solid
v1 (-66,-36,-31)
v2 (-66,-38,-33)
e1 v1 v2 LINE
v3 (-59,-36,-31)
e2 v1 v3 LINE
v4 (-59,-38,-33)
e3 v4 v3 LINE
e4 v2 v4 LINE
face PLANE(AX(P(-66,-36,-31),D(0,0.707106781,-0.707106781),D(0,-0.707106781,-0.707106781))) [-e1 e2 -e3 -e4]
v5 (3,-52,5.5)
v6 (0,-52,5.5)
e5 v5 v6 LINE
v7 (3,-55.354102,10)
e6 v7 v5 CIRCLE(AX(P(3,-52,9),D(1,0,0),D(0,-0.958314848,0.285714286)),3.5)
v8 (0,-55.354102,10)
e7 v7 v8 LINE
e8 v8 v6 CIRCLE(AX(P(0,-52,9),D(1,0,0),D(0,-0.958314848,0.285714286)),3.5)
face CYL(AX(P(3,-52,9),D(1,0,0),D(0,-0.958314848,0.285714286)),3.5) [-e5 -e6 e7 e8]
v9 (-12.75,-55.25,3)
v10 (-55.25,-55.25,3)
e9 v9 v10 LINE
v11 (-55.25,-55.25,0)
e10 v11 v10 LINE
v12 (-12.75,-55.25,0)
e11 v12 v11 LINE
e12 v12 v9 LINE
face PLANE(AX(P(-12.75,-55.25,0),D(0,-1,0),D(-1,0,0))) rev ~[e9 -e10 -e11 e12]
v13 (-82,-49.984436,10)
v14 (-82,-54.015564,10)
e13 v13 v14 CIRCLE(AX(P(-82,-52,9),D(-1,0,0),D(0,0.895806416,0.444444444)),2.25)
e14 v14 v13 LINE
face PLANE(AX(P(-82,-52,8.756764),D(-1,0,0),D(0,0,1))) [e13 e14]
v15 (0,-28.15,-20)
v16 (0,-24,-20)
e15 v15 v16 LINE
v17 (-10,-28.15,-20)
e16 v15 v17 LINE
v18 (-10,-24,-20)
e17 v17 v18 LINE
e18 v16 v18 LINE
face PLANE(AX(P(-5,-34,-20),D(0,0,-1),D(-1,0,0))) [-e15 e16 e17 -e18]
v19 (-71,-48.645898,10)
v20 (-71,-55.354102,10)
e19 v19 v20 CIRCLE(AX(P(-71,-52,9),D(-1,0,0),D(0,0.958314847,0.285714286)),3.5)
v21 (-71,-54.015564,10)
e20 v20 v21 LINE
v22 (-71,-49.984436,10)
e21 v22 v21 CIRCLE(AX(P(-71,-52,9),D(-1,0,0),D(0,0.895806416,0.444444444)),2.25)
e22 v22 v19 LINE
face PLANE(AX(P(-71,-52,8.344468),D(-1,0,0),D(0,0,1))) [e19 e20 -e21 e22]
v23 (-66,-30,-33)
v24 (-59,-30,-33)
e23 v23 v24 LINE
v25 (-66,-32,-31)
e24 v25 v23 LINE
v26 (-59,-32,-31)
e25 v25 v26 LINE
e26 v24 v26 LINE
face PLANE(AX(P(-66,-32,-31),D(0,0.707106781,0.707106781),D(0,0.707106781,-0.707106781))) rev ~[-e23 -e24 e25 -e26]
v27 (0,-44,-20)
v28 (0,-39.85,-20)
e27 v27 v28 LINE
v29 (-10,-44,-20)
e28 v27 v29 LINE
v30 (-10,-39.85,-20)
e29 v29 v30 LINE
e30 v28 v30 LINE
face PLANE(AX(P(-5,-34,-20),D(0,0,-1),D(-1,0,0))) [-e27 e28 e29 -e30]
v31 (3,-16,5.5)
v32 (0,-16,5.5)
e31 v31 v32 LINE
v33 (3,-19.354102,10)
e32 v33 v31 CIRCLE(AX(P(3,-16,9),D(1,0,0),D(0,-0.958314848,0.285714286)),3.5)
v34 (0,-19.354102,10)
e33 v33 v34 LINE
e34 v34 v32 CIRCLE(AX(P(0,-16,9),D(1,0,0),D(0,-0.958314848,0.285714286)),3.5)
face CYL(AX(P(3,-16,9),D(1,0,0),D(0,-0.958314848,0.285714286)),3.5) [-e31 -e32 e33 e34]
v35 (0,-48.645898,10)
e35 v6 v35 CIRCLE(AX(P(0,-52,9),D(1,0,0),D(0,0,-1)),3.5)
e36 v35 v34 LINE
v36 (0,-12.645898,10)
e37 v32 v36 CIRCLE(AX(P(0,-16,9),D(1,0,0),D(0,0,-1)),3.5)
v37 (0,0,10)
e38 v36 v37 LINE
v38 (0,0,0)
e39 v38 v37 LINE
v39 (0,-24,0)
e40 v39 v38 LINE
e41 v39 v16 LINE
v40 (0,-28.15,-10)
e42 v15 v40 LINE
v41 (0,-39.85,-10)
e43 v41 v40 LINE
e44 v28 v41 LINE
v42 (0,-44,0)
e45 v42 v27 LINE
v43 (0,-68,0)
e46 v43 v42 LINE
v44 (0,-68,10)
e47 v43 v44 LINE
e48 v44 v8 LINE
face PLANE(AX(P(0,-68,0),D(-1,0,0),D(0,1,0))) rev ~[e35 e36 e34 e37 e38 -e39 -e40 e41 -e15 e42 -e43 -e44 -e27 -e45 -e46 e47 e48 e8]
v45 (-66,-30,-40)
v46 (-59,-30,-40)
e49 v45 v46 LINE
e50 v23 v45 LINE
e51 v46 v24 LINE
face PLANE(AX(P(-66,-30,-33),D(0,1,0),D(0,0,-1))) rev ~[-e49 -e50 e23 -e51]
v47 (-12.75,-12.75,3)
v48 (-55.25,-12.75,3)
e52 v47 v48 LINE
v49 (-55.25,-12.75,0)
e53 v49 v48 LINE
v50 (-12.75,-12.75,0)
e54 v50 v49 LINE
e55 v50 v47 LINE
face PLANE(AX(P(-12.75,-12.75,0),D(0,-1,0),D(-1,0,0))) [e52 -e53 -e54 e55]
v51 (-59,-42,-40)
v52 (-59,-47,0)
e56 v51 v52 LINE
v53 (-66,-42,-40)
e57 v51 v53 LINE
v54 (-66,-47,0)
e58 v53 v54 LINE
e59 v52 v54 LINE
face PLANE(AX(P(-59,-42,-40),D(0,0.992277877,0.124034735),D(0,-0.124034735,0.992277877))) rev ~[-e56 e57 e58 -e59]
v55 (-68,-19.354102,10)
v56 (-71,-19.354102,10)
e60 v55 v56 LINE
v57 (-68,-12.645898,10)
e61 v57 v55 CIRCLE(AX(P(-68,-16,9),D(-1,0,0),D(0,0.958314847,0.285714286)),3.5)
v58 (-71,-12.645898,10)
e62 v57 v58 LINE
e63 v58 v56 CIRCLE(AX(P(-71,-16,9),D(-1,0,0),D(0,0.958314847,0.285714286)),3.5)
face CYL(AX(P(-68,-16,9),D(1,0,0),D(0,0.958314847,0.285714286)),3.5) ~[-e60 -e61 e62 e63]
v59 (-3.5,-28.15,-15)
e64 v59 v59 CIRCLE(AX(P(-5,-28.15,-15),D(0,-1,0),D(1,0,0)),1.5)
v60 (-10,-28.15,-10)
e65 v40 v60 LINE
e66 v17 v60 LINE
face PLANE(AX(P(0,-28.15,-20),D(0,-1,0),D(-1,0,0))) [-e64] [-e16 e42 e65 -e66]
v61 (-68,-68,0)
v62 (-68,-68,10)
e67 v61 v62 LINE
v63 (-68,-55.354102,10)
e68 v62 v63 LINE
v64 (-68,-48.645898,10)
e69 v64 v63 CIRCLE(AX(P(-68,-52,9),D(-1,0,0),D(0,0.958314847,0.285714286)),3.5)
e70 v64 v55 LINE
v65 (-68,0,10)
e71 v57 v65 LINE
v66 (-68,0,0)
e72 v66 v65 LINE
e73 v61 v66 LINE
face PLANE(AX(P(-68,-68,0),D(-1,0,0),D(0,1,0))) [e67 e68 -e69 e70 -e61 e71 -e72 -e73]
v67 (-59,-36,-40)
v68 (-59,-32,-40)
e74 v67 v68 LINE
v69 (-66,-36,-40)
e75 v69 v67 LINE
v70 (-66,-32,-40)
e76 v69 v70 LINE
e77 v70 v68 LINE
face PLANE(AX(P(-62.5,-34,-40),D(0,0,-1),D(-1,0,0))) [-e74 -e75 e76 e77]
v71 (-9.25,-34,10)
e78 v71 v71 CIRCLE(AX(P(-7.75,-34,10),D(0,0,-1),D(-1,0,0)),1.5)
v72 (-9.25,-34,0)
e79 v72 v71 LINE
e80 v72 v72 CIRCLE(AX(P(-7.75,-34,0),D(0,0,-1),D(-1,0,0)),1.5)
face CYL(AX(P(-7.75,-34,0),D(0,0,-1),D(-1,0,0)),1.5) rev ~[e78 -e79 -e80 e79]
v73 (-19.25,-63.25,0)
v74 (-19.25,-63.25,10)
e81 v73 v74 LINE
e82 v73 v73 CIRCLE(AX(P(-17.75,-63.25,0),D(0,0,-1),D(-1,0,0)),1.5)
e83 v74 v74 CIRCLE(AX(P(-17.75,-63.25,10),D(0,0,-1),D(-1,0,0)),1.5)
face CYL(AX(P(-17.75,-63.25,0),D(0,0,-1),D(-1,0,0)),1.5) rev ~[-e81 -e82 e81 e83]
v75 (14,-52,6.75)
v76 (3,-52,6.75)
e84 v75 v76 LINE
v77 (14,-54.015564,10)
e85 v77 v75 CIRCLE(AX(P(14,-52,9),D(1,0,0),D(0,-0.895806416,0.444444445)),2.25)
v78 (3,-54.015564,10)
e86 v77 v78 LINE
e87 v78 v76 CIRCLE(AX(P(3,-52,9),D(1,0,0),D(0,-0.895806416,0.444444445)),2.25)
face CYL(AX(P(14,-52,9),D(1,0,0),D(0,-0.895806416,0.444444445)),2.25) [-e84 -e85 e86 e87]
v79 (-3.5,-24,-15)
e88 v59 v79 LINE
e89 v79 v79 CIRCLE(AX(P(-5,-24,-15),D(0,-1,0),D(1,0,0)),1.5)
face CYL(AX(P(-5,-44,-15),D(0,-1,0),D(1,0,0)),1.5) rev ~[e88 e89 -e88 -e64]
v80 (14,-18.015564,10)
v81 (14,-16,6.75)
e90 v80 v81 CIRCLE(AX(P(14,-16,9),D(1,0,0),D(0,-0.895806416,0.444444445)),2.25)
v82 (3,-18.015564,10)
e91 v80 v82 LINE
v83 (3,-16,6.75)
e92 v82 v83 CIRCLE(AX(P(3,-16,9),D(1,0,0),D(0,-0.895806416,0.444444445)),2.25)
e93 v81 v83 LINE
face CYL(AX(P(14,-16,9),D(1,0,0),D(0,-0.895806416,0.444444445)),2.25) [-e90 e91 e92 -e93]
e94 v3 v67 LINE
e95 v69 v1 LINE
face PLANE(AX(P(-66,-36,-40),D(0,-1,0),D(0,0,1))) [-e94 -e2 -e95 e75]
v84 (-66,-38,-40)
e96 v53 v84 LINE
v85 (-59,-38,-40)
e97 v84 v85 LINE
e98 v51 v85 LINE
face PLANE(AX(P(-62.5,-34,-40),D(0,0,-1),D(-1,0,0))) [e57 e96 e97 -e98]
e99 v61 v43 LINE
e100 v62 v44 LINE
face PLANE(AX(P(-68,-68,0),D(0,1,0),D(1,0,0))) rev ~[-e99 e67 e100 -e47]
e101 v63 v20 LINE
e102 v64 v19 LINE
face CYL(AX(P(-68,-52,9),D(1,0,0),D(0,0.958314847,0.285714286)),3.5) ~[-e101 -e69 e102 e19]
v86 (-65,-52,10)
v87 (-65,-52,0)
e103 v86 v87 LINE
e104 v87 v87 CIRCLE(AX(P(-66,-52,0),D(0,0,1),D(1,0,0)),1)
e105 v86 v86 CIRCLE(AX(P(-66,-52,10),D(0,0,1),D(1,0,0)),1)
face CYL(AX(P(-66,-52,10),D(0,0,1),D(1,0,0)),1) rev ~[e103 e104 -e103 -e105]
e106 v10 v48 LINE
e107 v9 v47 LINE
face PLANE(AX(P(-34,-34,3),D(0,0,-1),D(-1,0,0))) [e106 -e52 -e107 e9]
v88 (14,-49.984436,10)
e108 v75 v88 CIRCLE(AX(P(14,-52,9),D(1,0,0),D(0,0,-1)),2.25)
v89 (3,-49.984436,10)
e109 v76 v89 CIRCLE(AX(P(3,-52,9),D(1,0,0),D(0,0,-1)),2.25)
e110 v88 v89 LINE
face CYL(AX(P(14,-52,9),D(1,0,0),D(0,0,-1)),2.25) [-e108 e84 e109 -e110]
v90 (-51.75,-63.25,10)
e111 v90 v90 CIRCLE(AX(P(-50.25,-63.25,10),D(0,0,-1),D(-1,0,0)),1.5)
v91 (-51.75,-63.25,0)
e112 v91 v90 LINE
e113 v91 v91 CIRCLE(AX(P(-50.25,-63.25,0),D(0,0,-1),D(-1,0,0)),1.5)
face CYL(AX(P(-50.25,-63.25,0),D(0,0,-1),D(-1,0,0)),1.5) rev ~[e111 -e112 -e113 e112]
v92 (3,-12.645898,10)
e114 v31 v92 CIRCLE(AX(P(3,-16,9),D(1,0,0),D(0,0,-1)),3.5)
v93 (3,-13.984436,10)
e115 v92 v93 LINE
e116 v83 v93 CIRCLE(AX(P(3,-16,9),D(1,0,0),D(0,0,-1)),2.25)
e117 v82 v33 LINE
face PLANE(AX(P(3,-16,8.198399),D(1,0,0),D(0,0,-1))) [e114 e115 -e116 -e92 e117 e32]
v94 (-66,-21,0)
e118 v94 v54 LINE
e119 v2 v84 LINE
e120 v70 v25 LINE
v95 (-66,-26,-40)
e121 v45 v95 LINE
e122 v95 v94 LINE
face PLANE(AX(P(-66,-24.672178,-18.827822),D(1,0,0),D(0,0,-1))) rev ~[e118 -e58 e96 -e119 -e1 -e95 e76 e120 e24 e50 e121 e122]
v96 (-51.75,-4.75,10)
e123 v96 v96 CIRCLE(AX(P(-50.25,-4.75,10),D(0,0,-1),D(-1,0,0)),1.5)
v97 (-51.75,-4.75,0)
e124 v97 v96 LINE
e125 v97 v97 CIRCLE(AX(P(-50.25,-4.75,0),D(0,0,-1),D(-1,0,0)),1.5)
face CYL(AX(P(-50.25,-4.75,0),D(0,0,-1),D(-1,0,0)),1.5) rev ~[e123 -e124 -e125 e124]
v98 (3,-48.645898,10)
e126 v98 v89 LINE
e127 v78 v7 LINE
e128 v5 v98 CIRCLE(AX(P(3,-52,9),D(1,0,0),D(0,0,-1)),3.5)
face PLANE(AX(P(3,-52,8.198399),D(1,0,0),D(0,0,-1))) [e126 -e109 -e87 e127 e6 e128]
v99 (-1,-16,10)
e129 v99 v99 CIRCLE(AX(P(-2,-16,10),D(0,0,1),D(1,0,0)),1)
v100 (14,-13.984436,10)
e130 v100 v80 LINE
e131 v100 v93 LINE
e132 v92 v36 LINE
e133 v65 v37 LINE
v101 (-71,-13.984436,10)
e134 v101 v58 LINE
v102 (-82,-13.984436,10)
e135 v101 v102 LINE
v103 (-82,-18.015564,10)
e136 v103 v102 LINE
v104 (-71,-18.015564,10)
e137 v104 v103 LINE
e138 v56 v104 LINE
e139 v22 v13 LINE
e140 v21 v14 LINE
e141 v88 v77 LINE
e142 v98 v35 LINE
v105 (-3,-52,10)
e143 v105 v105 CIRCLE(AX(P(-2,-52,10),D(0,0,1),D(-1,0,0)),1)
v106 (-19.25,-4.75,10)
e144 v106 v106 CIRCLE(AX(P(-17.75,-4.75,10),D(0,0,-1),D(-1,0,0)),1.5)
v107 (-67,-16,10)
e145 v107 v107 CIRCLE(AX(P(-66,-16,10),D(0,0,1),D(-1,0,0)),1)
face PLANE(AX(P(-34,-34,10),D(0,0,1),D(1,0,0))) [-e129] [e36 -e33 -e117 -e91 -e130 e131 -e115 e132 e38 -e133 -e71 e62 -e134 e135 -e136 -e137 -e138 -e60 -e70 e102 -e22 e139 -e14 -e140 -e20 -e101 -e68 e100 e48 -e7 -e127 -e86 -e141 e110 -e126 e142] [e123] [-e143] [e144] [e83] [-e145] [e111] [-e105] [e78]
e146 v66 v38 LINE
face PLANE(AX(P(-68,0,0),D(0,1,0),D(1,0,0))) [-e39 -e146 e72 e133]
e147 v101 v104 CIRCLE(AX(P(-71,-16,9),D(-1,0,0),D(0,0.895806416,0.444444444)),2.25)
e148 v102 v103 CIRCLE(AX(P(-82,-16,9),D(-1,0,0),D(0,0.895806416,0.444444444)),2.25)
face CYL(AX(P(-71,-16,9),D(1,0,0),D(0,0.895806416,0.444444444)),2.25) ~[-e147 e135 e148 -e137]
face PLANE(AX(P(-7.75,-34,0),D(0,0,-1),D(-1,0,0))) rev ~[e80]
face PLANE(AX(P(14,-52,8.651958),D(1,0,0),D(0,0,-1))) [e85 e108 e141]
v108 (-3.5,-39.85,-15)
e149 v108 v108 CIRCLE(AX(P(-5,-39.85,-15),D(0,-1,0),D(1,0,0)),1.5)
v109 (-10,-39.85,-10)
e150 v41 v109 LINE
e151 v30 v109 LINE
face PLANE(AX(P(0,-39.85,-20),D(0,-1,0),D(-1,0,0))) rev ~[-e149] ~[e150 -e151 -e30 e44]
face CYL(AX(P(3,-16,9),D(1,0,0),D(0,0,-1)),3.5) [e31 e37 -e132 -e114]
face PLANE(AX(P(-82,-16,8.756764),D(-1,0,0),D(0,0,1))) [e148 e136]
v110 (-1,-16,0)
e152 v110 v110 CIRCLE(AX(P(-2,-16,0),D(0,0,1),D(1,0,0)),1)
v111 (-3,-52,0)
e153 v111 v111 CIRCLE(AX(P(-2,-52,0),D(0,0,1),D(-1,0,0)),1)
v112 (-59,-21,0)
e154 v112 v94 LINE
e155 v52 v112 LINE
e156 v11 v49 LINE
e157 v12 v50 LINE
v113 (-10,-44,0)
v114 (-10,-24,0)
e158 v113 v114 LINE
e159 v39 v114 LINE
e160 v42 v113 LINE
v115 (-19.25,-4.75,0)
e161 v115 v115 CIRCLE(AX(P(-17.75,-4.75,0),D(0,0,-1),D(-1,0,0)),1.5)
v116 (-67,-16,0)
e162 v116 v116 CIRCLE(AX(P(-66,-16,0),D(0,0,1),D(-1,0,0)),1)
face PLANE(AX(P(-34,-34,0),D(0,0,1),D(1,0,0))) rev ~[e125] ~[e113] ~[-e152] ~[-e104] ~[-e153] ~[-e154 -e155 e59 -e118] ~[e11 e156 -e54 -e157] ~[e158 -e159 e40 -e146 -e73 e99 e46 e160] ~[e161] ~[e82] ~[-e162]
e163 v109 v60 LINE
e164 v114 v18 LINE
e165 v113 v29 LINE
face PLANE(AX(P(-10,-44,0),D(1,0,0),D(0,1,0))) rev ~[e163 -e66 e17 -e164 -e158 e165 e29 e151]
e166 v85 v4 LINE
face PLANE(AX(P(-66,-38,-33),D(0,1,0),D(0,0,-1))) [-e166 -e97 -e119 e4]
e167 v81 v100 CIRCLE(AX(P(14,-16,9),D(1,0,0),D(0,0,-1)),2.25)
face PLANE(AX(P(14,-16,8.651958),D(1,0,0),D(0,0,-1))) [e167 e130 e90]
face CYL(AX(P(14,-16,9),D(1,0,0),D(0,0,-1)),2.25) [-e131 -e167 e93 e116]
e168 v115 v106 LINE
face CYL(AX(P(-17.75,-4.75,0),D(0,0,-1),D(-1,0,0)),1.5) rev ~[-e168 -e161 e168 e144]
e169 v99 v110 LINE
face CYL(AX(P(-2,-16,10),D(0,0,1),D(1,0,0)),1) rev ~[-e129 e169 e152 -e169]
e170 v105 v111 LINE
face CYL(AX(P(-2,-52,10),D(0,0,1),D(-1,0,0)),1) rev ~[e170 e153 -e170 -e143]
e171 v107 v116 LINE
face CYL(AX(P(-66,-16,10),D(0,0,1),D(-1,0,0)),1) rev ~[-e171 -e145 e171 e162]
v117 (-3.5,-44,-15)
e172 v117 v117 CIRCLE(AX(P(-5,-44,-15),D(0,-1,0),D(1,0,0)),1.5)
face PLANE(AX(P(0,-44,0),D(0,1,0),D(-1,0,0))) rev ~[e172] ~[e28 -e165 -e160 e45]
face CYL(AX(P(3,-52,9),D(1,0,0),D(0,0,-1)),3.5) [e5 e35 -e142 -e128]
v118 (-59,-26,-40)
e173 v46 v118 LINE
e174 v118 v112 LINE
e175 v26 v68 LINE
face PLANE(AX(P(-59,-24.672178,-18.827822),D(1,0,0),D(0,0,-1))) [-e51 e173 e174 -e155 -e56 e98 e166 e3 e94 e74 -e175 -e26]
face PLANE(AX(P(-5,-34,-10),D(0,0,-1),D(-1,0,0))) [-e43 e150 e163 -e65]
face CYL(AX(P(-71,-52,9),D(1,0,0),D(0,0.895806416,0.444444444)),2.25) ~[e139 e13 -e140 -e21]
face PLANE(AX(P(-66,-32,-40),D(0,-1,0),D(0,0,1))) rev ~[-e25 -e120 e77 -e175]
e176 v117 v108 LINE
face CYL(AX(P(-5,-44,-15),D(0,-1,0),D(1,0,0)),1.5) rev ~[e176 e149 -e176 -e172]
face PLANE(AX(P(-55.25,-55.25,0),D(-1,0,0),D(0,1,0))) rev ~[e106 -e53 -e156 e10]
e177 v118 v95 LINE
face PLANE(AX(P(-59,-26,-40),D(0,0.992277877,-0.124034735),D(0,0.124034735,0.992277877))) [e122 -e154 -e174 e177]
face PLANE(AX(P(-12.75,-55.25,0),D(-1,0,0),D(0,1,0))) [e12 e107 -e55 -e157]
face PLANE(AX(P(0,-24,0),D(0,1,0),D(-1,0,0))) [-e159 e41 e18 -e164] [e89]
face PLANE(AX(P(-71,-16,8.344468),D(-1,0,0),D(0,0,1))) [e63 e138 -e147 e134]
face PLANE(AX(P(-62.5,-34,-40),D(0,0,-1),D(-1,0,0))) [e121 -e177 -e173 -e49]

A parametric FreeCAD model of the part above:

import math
import FreeCAD as App
import Part
import Sketcher
Q = App.Units.Quantity

doc = App.newDocument("Part")
body = doc.addObject("PartDesign::Body", "Body")

sketch1 = body.newObject("Sketcher::SketchObject", "Sketch")
sketch1.AttachmentSupport = (doc.getObject("XY_Plane"), [""])
sketch1.MapMode = "FlatFace"
sketch1.addGeometry(Part.LineSegment(App.Vector(-68, 0, 0), App.Vector(-68, -68, 0)), False)
sketch1.addGeometry(Part.LineSegment(App.Vector(-68, -68, 0), App.Vector(0, -68, 0)), False)
sketch1.addGeometry(Part.LineSegment(App.Vector(0, -68, 0), App.Vector(0, 0, 0)), False)
sketch1.addGeometry(Part.LineSegment(App.Vector(0, 0, 0), App.Vector(-68, 0, 0)), False)
sketch1.addConstraint(Sketcher.Constraint("Coincident", 0, 2, 1, 1))
sketch1.addConstraint(Sketcher.Constraint("Coincident", 1, 2, 2, 1))
sketch1.addConstraint(Sketcher.Constraint("Coincident", 2, 2, 3, 1))
sketch1.addConstraint(Sketcher.Constraint("Coincident", 3, 2, 0, 1))
sketch1.addConstraint(Sketcher.Constraint("Vertical", 0))
sketch1.addConstraint(Sketcher.Constraint("Horizontal", 1))
sketch1.addConstraint(Sketcher.Constraint("Vertical", 2))
sketch1.addConstraint(Sketcher.Constraint("Horizontal", 3))
sketch1.addConstraint(Sketcher.Constraint("Coincident", 2, 2, -1, 1))
sketch1.addConstraint(Sketcher.Constraint("Equal", 3, 0))
sketch1.addConstraint(Sketcher.Constraint("DistanceX", 1, 1, 1, 2, Q("68 mm")))
pad1 = body.newObject("PartDesign::Pad", "Pad")
pad1.Profile = sketch1
pad1.Length = 10

sketch2 = body.newObject("Sketcher::SketchObject", "Sketch001")
sketch2.AttachmentSupport = (doc.getObject("YZ_Plane"), [""])
sketch2.MapMode = "FlatFace"
sketch2.AttachmentOffset = App.Placement(App.Vector(0, 0, -68), App.Rotation())
sketch2.addGeometry(Part.LineSegment(App.Vector(-19.4, 10, 0), App.Vector(-12.6, 10, 0)), False)
sketch2.addGeometry(Part.ArcOfCircle(Part.Circle(App.Vector(-16, 9, 0), App.Vector(0, 0, 1), 3.5), math.radians(163), math.radians(377)), False)
sketch2.addGeometry(Part.LineSegment(App.Vector(-55.4, 10, 0), App.Vector(-48.6, 10, 0)), False)
sketch2.addGeometry(Part.ArcOfCircle(Part.Circle(App.Vector(-52, 9, 0), App.Vector(0, 0, 1), 3.5), math.radians(163), math.radians(377)), False)
sketch2.addConstraint(Sketcher.Constraint("Coincident", 0, 1, 1, 1))
sketch2.addConstraint(Sketcher.Constraint("Coincident", 1, 2, 0, 2))
sketch2.addConstraint(Sketcher.Constraint("Coincident", 2, 1, 3, 1))
sketch2.addConstraint(Sketcher.Constraint("Coincident", 3, 2, 2, 2))
sketch2.addConstraint(Sketcher.Constraint("Horizontal", 0))
sketch2.addConstraint(Sketcher.Constraint("Horizontal", 2))
sketch2.addConstraint(Sketcher.Constraint("Equal", 1, 3))
sketch2.addConstraint(Sketcher.Constraint("Horizontal", 1, 3, 3, 3))
sketch2.addConstraint(Sketcher.Constraint("Horizontal", 1, 2, 2, 1))
sketch2.addConstraint(Sketcher.Constraint("Radius", 1, Q("3.5 mm")))
sketch2.addConstraint(Sketcher.Constraint("DistanceX", 1, 3, -1, 1, Q("16 mm")))
sketch2.addConstraint(Sketcher.Constraint("DistanceY", -1, 1, 1, 3, Q("9 mm")))
sketch2.addConstraint(Sketcher.Constraint("DistanceX", 3, 3, -1, 1, Q("52 mm")))
sketch2.addConstraint(Sketcher.Constraint("DistanceY", -1, 1, 0, 1, Q("10 mm")))
pad2 = body.newObject("PartDesign::Pad", "Pad001")
pad2.Profile = sketch2
pad2.Length = 3
pad2.Reversed = True

sketch3 = body.newObject("Sketcher::SketchObject", "Sketch002")
sketch3.AttachmentSupport = (doc.getObject("YZ_Plane"), [""])
sketch3.MapMode = "FlatFace"
sketch3.AttachmentOffset = App.Placement(App.Vector(0, 0, -71), App.Rotation())
sketch3.addGeometry(Part.ArcOfCircle(Part.Circle(App.Vector(-52, 9, 0), App.Vector(0, 0, 1), 2.2), math.radians(154), math.radians(386)), False)
sketch3.addGeometry(Part.LineSegment(App.Vector(-54, 10, 0), App.Vector(-50, 10, 0)), False)
sketch3.addGeometry(Part.ArcOfCircle(Part.Circle(App.Vector(-16, 9, 0), App.Vector(0, 0, 1), 2.2), math.radians(154), math.radians(386)), False)
sketch3.addGeometry(Part.LineSegment(App.Vector(-18, 10, 0), App.Vector(-14, 10, 0)), False)
sketch3.addConstraint(Sketcher.Constraint("Coincident", 0, 1, 1, 1))
sketch3.addConstraint(Sketcher.Constraint("Coincident", 1, 2, 0, 2))
sketch3.addConstraint(Sketcher.Constraint("Coincident", 2, 1, 3, 1))
sketch3.addConstraint(Sketcher.Constraint("Coincident", 3, 2, 2, 2))
sketch3.addConstraint(Sketcher.Constraint("Horizontal", 1))
sketch3.addConstraint(Sketcher.Constraint("Horizontal", 3))
sketch3.addConstraint(Sketcher.Constraint("Equal", 0, 2))
sketch3.addConstraint(Sketcher.Constraint("Horizontal", 0, 3, 2, 3))
sketch3.addConstraint(Sketcher.Constraint("Horizontal", 1, 2, 2, 1))
sketch3.addConstraint(Sketcher.Constraint("Radius", 0, Q("2.25 mm")))
sketch3.addConstraint(Sketcher.Constraint("DistanceX", 0, 3, -1, 1, Q("52 mm")))
sketch3.addConstraint(Sketcher.Constraint("DistanceY", -1, 1, 0, 3, Q("9 mm")))
sketch3.addConstraint(Sketcher.Constraint("DistanceX", 2, 3, -1, 1, Q("16 mm")))
sketch3.addConstraint(Sketcher.Constraint("DistanceY", -1, 1, 0, 1, Q("10 mm")))
pad3 = body.newObject("PartDesign::Pad", "Pad002")
pad3.Profile = sketch3
pad3.Length = 11
pad3.Reversed = True

sketch4 = body.newObject("Sketcher::SketchObject", "Sketch003")
sketch4.AttachmentSupport = (doc.getObject("YZ_Plane"), [""])
sketch4.MapMode = "FlatFace"
sketch4.AttachmentOffset = App.Placement(App.Vector(0, 0, 3), App.Rotation())
sketch4.addGeometry(Part.ArcOfCircle(Part.Circle(App.Vector(-16, 9, 0), App.Vector(0, 0, 1), 3.5), math.radians(-90), math.radians(17)), False)
sketch4.addGeometry(Part.LineSegment(App.Vector(-12.6, 10, 0), App.Vector(-19.4, 10, 0)), False)
sketch4.addGeometry(Part.ArcOfCircle(Part.Circle(App.Vector(-16, 9, 0), App.Vector(0, 0, 1), 3.5), math.radians(163), math.radians(270)), False)
sketch4.addGeometry(Part.ArcOfCircle(Part.Circle(App.Vector(-52, 9, 0), App.Vector(0, 0, 1), 3.5), math.radians(-90), math.radians(17)), False)
sketch4.addGeometry(Part.LineSegment(App.Vector(-48.6, 10, 0), App.Vector(-55.4, 10, 0)), False)
sketch4.addGeometry(Part.ArcOfCircle(Part.Circle(App.Vector(-52, 9, 0), App.Vector(0, 0, 1), 3.5), math.radians(163), math.radians(270)), False)
sketch4.addConstraint(Sketcher.Constraint("Coincident", 0, 2, 1, 1))
sketch4.addConstraint(Sketcher.Constraint("Coincident", 1, 2, 2, 1))
sketch4.addConstraint(Sketcher.Constraint("Tangent", 2, 2, 0, 1))
sketch4.addConstraint(Sketcher.Constraint("Coincident", 3, 2, 4, 1))
sketch4.addConstraint(Sketcher.Constraint("Coincident", 4, 2, 5, 1))
sketch4.addConstraint(Sketcher.Constraint("Tangent", 5, 2, 3, 1))
sketch4.addConstraint(Sketcher.Constraint("Horizontal", 1))
sketch4.addConstraint(Sketcher.Constraint("Horizontal", 4))
sketch4.addConstraint(Sketcher.Constraint("Equal", 0, 2))
sketch4.addConstraint(Sketcher.Constraint("Equal", 2, 3))
sketch4.addConstraint(Sketcher.Constraint("Equal", 3, 5))
sketch4.addConstraint(Sketcher.Constraint("Horizontal", 2, 3, 3, 3))
sketch4.addConstraint(Sketcher.Constraint("Horizontal", 1, 2, 3, 2))
sketch4.addConstraint(Sketcher.Constraint("Vertical", 0, 3, 2, 2))
sketch4.addConstraint(Sketcher.Constraint("Vertical", 3, 3, 5, 2))
sketch4.addConstraint(Sketcher.Constraint("Radius", 0, Q("3.5 mm")))
sketch4.addConstraint(Sketcher.Constraint("DistanceX", 0, 3, -1, 1, Q("16 mm")))
sketch4.addConstraint(Sketcher.Constraint("DistanceY", -1, 1, 0, 3, Q("9 mm")))
sketch4.addConstraint(Sketcher.Constraint("DistanceX", 3, 3, -1, 1, Q("52 mm")))
sketch4.addConstraint(Sketcher.Constraint("DistanceY", -1, 1, 0, 2, Q("10 mm")))
pad4 = body.newObject("PartDesign::Pad", "Pad003")
pad4.Profile = sketch4
pad4.Length = 3
pad4.Reversed = True

sketch5 = body.newObject("Sketcher::SketchObject", "Sketch004")
sketch5.AttachmentSupport = (doc.getObject("YZ_Plane"), [""])
sketch5.MapMode = "FlatFace"
sketch5.AttachmentOffset = App.Placement(App.Vector(0, 0, 14), App.Rotation())
sketch5.addGeometry(Part.ArcOfCircle(Part.Circle(App.Vector(-16, 9, 0), App.Vector(0, 0, 1), 2.2), math.radians(-90), math.radians(26)), False)
sketch5.addGeometry(Part.LineSegment(App.Vector(-14, 10, 0), App.Vector(-18, 10, 0)), False)
sketch5.addGeometry(Part.ArcOfCircle(Part.Circle(App.Vector(-16, 9, 0), App.Vector(0, 0, 1), 2.2), math.radians(154), math.radians(270)), False)
sketch5.addGeometry(Part.ArcOfCircle(Part.Circle(App.Vector(-52, 9, 0), App.Vector(0, 0, 1), 2.2), math.radians(-90), math.radians(26)), False)
sketch5.addGeometry(Part.LineSegment(App.Vector(-50, 10, 0), App.Vector(-54, 10, 0)), False)
sketch5.addGeometry(Part.ArcOfCircle(Part.Circle(App.Vector(-52, 9, 0), App.Vector(0, 0, 1), 2.2), math.radians(154), math.radians(270)), False)
sketch5.addConstraint(Sketcher.Constraint("Coincident", 0, 2, 1, 1))
sketch5.addConstraint(Sketcher.Constraint("Coincident", 1, 2, 2, 1))
sketch5.addConstraint(Sketcher.Constraint("Tangent", 2, 2, 0, 1))
sketch5.addConstraint(Sketcher.Constraint("Coincident", 3, 2, 4, 1))
sketch5.addConstraint(Sketcher.Constraint("Coincident", 4, 2, 5, 1))
sketch5.addConstraint(Sketcher.Constraint("Tangent", 5, 2, 3, 1))
sketch5.addConstraint(Sketcher.Constraint("Horizontal", 1))
sketch5.addConstraint(Sketcher.Constraint("Horizontal", 4))
sketch5.addConstraint(Sketcher.Constraint("Equal", 0, 2))
sketch5.addConstraint(Sketcher.Constraint("Equal", 2, 3))
sketch5.addConstraint(Sketcher.Constraint("Equal", 3, 5))
sketch5.addConstraint(Sketcher.Constraint("Horizontal", 2, 3, 3, 3))
sketch5.addConstraint(Sketcher.Constraint("Horizontal", 1, 2, 3, 2))
sketch5.addConstraint(Sketcher.Constraint("Vertical", 0, 3, 2, 2))
sketch5.addConstraint(Sketcher.Constraint("Vertical", 3, 3, 5, 2))
sketch5.addConstraint(Sketcher.Constraint("Radius", 0, Q("2.25 mm")))
sketch5.addConstraint(Sketcher.Constraint("DistanceX", 0, 3, -1, 1, Q("16 mm")))
sketch5.addConstraint(Sketcher.Constraint("DistanceY", -1, 1, 0, 3, Q("9 mm")))
sketch5.addConstraint(Sketcher.Constraint("DistanceX", 3, 3, -1, 1, Q("52 mm")))
sketch5.addConstraint(Sketcher.Constraint("DistanceY", -1, 1, 0, 2, Q("10 mm")))
pad5 = body.newObject("PartDesign::Pad", "Pad004")
pad5.Profile = sketch5
pad5.Length = 11
pad5.Reversed = True

sketch6 = body.newObject("Sketcher::SketchObject", "Sketch005")
sketch6.AttachmentSupport = (doc.getObject("XY_Plane"), [""])
sketch6.MapMode = "FlatFace"
sketch6.addGeometry(Part.LineSegment(App.Vector(-13, -13, 0), App.Vector(-13, -55, 0)), False)
sketch6.addGeometry(Part.LineSegment(App.Vector(-13, -55, 0), App.Vector(-55, -55, 0)), False)
sketch6.addGeometry(Part.LineSegment(App.Vector(-55, -55, 0), App.Vector(-55, -13, 0)), False)
sketch6.addGeometry(Part.LineSegment(App.Vector(-55, -13, 0), App.Vector(-13, -13, 0)), False)
sketch6.addConstraint(Sketcher.Constraint("Coincident", 0, 2, 1, 1))
sketch6.addConstraint(Sketcher.Constraint("Coincident", 1, 2, 2, 1))
sketch6.addConstraint(Sketcher.Constraint("Coincident", 2, 2, 3, 1))
sketch6.addConstraint(Sketcher.Constraint("Coincident", 3, 2, 0, 1))
sketch6.addConstraint(Sketcher.Constraint("Vertical", 0))
sketch6.addConstraint(Sketcher.Constraint("Horizontal", 1))
sketch6.addConstraint(Sketcher.Constraint("Vertical", 2))
sketch6.addConstraint(Sketcher.Constraint("Horizontal", 3))
sketch6.addConstraint(Sketcher.Constraint("Equal", 3, 0))
sketch6.addConstraint(Sketcher.Constraint("DistanceX", 1, 2, 1, 1, Q("42.5 mm")))
sketch6.addConstraint(Sketcher.Constraint("DistanceX", 0, 2, -1, 1, Q("12.75 mm")))
sketch6.addConstraint(Sketcher.Constraint("DistanceY", 0, 2, -1, 1, Q("55.25 mm")))
pocket1 = body.newObject("PartDesign::Pocket", "Pocket")
pocket1.Profile = sketch6
pocket1.Length = 3
pocket1.Reversed = True

sketch7 = body.newObject("Sketcher::SketchObject", "Sketch006")
sketch7.AttachmentSupport = (doc.getObject("XY_Plane"), [""])
sketch7.MapMode = "FlatFace"
sketch7.addGeometry(Part.Circle(App.Vector(-17.8, -4.8, 0), App.Vector(0, 0, 1), 1.5), False)
sketch7.addGeometry(Part.Circle(App.Vector(-50.2, -4.8, 0), App.Vector(0, 0, 1), 1.5), False)
sketch7.addGeometry(Part.Circle(App.Vector(-50.2, -63.2, 0), App.Vector(0, 0, 1), 1.5), False)
sketch7.addGeometry(Part.Circle(App.Vector(-17.8, -63.2, 0), App.Vector(0, 0, 1), 1.5), False)
sketch7.addConstraint(Sketcher.Constraint("Equal", 0, 1))
sketch7.addConstraint(Sketcher.Constraint("Equal", 1, 2))
sketch7.addConstraint(Sketcher.Constraint("Equal", 2, 3))
sketch7.addConstraint(Sketcher.Constraint("Horizontal", 0, 3, 1, 3))
sketch7.addConstraint(Sketcher.Constraint("Horizontal", 2, 3, 3, 3))
sketch7.addConstraint(Sketcher.Constraint("Vertical", 1, 3, 2, 3))
sketch7.addConstraint(Sketcher.Constraint("Vertical", 0, 3, 3, 3))
sketch7.addConstraint(Sketcher.Constraint("Diameter", 0, Q("3 mm")))
sketch7.addConstraint(Sketcher.Constraint("DistanceX", 1, 3, 0, 3, Q("32.5 mm")))
sketch7.addConstraint(Sketcher.Constraint("DistanceY", 2, 3, 1, 3, Q("58.5 mm")))
sketch7.addConstraint(Sketcher.Constraint("DistanceX", 0, 3, -1, 1, Q("17.75 mm")))
sketch7.addConstraint(Sketcher.Constraint("DistanceY", 0, 3, -1, 1, Q("4.75 mm")))
pocket2 = body.newObject("PartDesign::Pocket", "Pocket001")
pocket2.Profile = sketch7
pocket2.Length = 15
pocket2.Reversed = True

sketch8 = body.newObject("Sketcher::SketchObject", "Sketch007")
sketch8.AttachmentSupport = (doc.getObject("XY_Plane"), [""])
sketch8.MapMode = "FlatFace"
sketch8.addGeometry(Part.LineSegment(App.Vector(0, -24, 0), App.Vector(0, -44, 0)), False)
sketch8.addGeometry(Part.LineSegment(App.Vector(0, -44, 0), App.Vector(-10, -44, 0)), False)
sketch8.addGeometry(Part.LineSegment(App.Vector(-10, -44, 0), App.Vector(-10, -24, 0)), False)
sketch8.addGeometry(Part.LineSegment(App.Vector(-10, -24, 0), App.Vector(0, -24, 0)), False)
sketch8.addConstraint(Sketcher.Constraint("Coincident", 0, 2, 1, 1))
sketch8.addConstraint(Sketcher.Constraint("Coincident", 1, 2, 2, 1))
sketch8.addConstraint(Sketcher.Constraint("Coincident", 2, 2, 3, 1))
sketch8.addConstraint(Sketcher.Constraint("Coincident", 3, 2, 0, 1))
sketch8.addConstraint(Sketcher.Constraint("Vertical", 0))
sketch8.addConstraint(Sketcher.Constraint("Horizontal", 1))
sketch8.addConstraint(Sketcher.Constraint("Vertical", 2))
sketch8.addConstraint(Sketcher.Constraint("Horizontal", 3))
sketch8.addConstraint(Sketcher.Constraint("PointOnObject", 0, 2, -2))
sketch8.addConstraint(Sketcher.Constraint("DistanceX", 1, 2, 1, 1, Q("10 mm")))
sketch8.addConstraint(Sketcher.Constraint("DistanceY", 0, 2, 0, 1, Q("20 mm")))
sketch8.addConstraint(Sketcher.Constraint("DistanceY", 0, 2, -1, 1, Q("44 mm")))
pad6 = body.newObject("PartDesign::Pad", "Pad005")
pad6.Profile = sketch8
pad6.Length = 20
pad6.Reversed = True

sketch9 = body.newObject("Sketcher::SketchObject", "Sketch008")
sketch9.AttachmentSupport = (doc.getObject("XY_Plane"), [""])
sketch9.MapMode = "FlatFace"
sketch9.addGeometry(Part.Circle(App.Vector(-7.8, -34, 0), App.Vector(0, 0, 1), 1.5), False)
sketch9.addGeometry(Part.Circle(App.Vector(-7.8, -78, 0), App.Vector(0, 0, 1), 1.5), False)
sketch9.addConstraint(Sketcher.Constraint("Equal", 0, 1))
sketch9.addConstraint(Sketcher.Constraint("Vertical", 0, 3, 1, 3))
sketch9.addConstraint(Sketcher.Constraint("Diameter", 0, Q("3 mm")))
sketch9.addConstraint(Sketcher.Constraint("DistanceY", 0, 3, -1, 1, Q("34 mm")))
sketch9.addConstraint(Sketcher.Constraint("DistanceY", 1, 3, -1, 1, Q("78 mm")))
sketch9.addConstraint(Sketcher.Constraint("DistanceX", 0, 3, -1, 1, Q("7.75 mm")))
pocket3 = body.newObject("PartDesign::Pocket", "Pocket002")
pocket3.Profile = sketch9
pocket3.Length = 10
pocket3.Reversed = True

sketch10 = body.newObject("Sketcher::SketchObject", "Sketch009")
sketch10.AttachmentSupport = (doc.getObject("XY_Plane"), [""])
sketch10.MapMode = "FlatFace"
sketch10.AttachmentOffset = App.Placement(App.Vector(0, 0, 10), App.Rotation())
sketch10.addGeometry(Part.Circle(App.Vector(-66, -52, 0), App.Vector(0, 0, 1), 1), False)
sketch10.addGeometry(Part.Circle(App.Vector(-66, -16, 0), App.Vector(0, 0, 1), 1), False)
sketch10.addGeometry(Part.Circle(App.Vector(-2, -52, 0), App.Vector(0, 0, 1), 1), False)
sketch10.addGeometry(Part.Circle(App.Vector(-2, -16, 0), App.Vector(0, 0, 1), 1), False)
sketch10.addConstraint(Sketcher.Constraint("Equal", 0, 1))
sketch10.addConstraint(Sketcher.Constraint("Equal", 1, 2))
sketch10.addConstraint(Sketcher.Constraint("Equal", 2, 3))
sketch10.addConstraint(Sketcher.Constraint("Horizontal", 0, 3, 2, 3))
sketch10.addConstraint(Sketcher.Constraint("Horizontal", 1, 3, 3, 3))
sketch10.addConstraint(Sketcher.Constraint("Vertical", 0, 3, 1, 3))
sketch10.addConstraint(Sketcher.Constraint("Vertical", 2, 3, 3, 3))
sketch10.addConstraint(Sketcher.Constraint("Diameter", 0, Q("2 mm")))
sketch10.addConstraint(Sketcher.Constraint("DistanceX", 0, 3, -1, 1, Q("66 mm")))
sketch10.addConstraint(Sketcher.Constraint("DistanceY", 0, 3, -1, 1, Q("52 mm")))
sketch10.addConstraint(Sketcher.Constraint("DistanceY", 1, 3, -1, 1, Q("16 mm")))
sketch10.addConstraint(Sketcher.Constraint("DistanceX", 2, 3, -1, 1, Q("2 mm")))
pocket4 = body.newObject("PartDesign::Pocket", "Pocket003")
pocket4.Profile = sketch10
pocket4.Length = 20

sketch11 = body.newObject("Sketcher::SketchObject", "Sketch010")
sketch11.AttachmentSupport = (doc.getObject("XY_Plane"), [""])
sketch11.MapMode = "FlatFace"
sketch11.addGeometry(Part.LineSegment(App.Vector(-59, -26, 0), App.Vector(-59, -42, 0)), False)
sketch11.addGeometry(Part.LineSegment(App.Vector(-59, -42, 0), App.Vector(-66, -42, 0)), False)
sketch11.addGeometry(Part.LineSegment(App.Vector(-66, -42, 0), App.Vector(-66, -26, 0)), False)
sketch11.addGeometry(Part.LineSegment(App.Vector(-66, -26, 0), App.Vector(-59, -26, 0)), False)
sketch11.addConstraint(Sketcher.Constraint("Coincident", 0, 2, 1, 1))
sketch11.addConstraint(Sketcher.Constraint("Coincident", 1, 2, 2, 1))
sketch11.addConstraint(Sketcher.Constraint("Coincident", 2, 2, 3, 1))
sketch11.addConstraint(Sketcher.Constraint("Coincident", 3, 2, 0, 1))
sketch11.addConstraint(Sketcher.Constraint("Vertical", 0))
sketch11.addConstraint(Sketcher.Constraint("Horizontal", 1))
sketch11.addConstraint(Sketcher.Constraint("Vertical", 2))
sketch11.addConstraint(Sketcher.Constraint("Horizontal", 3))
sketch11.addConstraint(Sketcher.Constraint("DistanceX", 1, 2, 1, 1, Q("7 mm")))
sketch11.addConstraint(Sketcher.Constraint("DistanceY", 0, 2, 0, 1, Q("16 mm")))
sketch11.addConstraint(Sketcher.Constraint("DistanceX", 0, 2, -1, 1, Q("59 mm")))
sketch11.addConstraint(Sketcher.Constraint("DistanceY", 0, 2, -1, 1, Q("42 mm")))
pad7 = body.newObject("PartDesign::Pad", "Pad006")
pad7.Profile = sketch11
pad7.Length = 40
pad7.Reversed = True

sketch12 = body.newObject("Sketcher::SketchObject", "Sketch011")
sketch12.AttachmentSupport = (doc.getObject("YZ_Plane"), [""])
sketch12.MapMode = "FlatFace"
sketch12.AttachmentOffset = App.Placement(App.Vector(0, 0, -66), App.Rotation())
sketch12.addGeometry(Part.LineSegment(App.Vector(-32, -40, 0), App.Vector(-32, -31, 0)), False)
sketch12.addGeometry(Part.LineSegment(App.Vector(-32, -31, 0), App.Vector(-30, -33, 0)), False)
sketch12.addGeometry(Part.LineSegment(App.Vector(-30, -33, 0), App.Vector(-30, -40, 0)), False)
sketch12.addGeometry(Part.LineSegment(App.Vector(-30, -40, 0), App.Vector(-32, -40, 0)), False)
sketch12.addGeometry(Part.LineSegment(App.Vector(-36, -40, 0), App.Vector(-38, -40, 0)), False)
sketch12.addGeometry(Part.LineSegment(App.Vector(-38, -40, 0), App.Vector(-38, -33, 0)), False)
sketch12.addGeometry(Part.LineSegment(App.Vector(-38, -33, 0), App.Vector(-36, -31, 0)), False)
sketch12.addGeometry(Part.LineSegment(App.Vector(-36, -31, 0), App.Vector(-36, -40, 0)), False)
sketch12.addConstraint(Sketcher.Constraint("Coincident", 0, 2, 1, 1))
sketch12.addConstraint(Sketcher.Constraint("Coincident", 1, 2, 2, 1))
sketch12.addConstraint(Sketcher.Constraint("Coincident", 2, 2, 3, 1))
sketch12.addConstraint(Sketcher.Constraint("Coincident", 3, 2, 0, 1))
sketch12.addConstraint(Sketcher.Constraint("Coincident", 4, 2, 5, 1))
sketch12.addConstraint(Sketcher.Constraint("Coincident", 5, 2, 6, 1))
sketch12.addConstraint(Sketcher.Constraint("Coincident", 6, 2, 7, 1))
sketch12.addConstraint(Sketcher.Constraint("Coincident", 7, 2, 4, 1))
sketch12.addConstraint(Sketcher.Constraint("Vertical", 0))
sketch12.addConstraint(Sketcher.Constraint("Vertical", 2))
sketch12.addConstraint(Sketcher.Constraint("Horizontal", 3))
sketch12.addConstraint(Sketcher.Constraint("Horizontal", 4))
sketch12.addConstraint(Sketcher.Constraint("Vertical", 5))
sketch12.addConstraint(Sketcher.Constraint("Vertical", 7))
sketch12.addConstraint(Sketcher.Constraint("Perpendicular", 1, 6))
sketch12.addConstraint(Sketcher.Constraint("Horizontal", 3, 2, 4, 2))
sketch12.addConstraint(Sketcher.Constraint("Horizontal", 1, 2, 5, 2))
sketch12.addConstraint(Sketcher.Constraint("Horizontal", 0, 2, 6, 2))
sketch12.addConstraint(Sketcher.Constraint("Equal", 3, 4))
sketch12.addConstraint(Sketcher.Constraint("DistanceX", 3, 2, 3, 1, Q("2 mm")))
sketch12.addConstraint(Sketcher.Constraint("DistanceY", 0, 1, 0, 2, Q("9 mm")))
sketch12.addConstraint(Sketcher.Constraint("DistanceX", 0, 2, -1, 1, Q("32 mm")))
sketch12.addConstraint(Sketcher.Constraint("DistanceY", 0, 2, -1, 1, Q("31 mm")))
sketch12.addConstraint(Sketcher.Constraint("DistanceX", 4, 2, -1, 1, Q("38 mm")))
pocket5 = body.newObject("PartDesign::Pocket", "Pocket004")
pocket5.Profile = sketch12
pocket5.Length = 10
pocket5.Reversed = True

sketch13 = body.newObject("Sketcher::SketchObject", "Sketch012")
sketch13.AttachmentSupport = (doc.getObject("YZ_Plane"), [""])
sketch13.MapMode = "FlatFace"
sketch13.AttachmentOffset = App.Placement(App.Vector(0, 0, -59), App.Rotation())
sketch13.addGeometry(Part.LineSegment(App.Vector(-26, -40, 0), App.Vector(-26, 0, 0)), False)
sketch13.addGeometry(Part.LineSegment(App.Vector(-26, 0, 0), App.Vector(-21, 0, 0)), False)
sketch13.addGeometry(Part.LineSegment(App.Vector(-21, 0, 0), App.Vector(-26, -40, 0)), False)
sketch13.addGeometry(Part.LineSegment(App.Vector(-42, -40, 0), App.Vector(-47, 0, 0)), False)
sketch13.addGeometry(Part.LineSegment(App.Vector(-47, 0, 0), App.Vector(-42, 0, 0)), False)
sketch13.addGeometry(Part.LineSegment(App.Vector(-42, 0, 0), App.Vector(-42, -40, 0)), False)
sketch13.addConstraint(Sketcher.Constraint("Coincident", 0, 2, 1, 1))
sketch13.addConstraint(Sketcher.Constraint("Coincident", 1, 2, 2, 1))
sketch13.addConstraint(Sketcher.Constraint("Coincident", 2, 2, 0, 1))
sketch13.addConstraint(Sketcher.Constraint("Coincident", 3, 2, 4, 1))
sketch13.addConstraint(Sketcher.Constraint("Coincident", 4, 2, 5, 1))
sketch13.addConstraint(Sketcher.Constraint("Coincident", 5, 2, 3, 1))
sketch13.addConstraint(Sketcher.Constraint("Vertical", 0))
sketch13.addConstraint(Sketcher.Constraint("Horizontal", 1))
sketch13.addConstraint(Sketcher.Constraint("Horizontal", 4))
sketch13.addConstraint(Sketcher.Constraint("Vertical", 5))
sketch13.addConstraint(Sketcher.Constraint("PointOnObject", 0, 2, -1))
sketch13.addConstraint(Sketcher.Constraint("PointOnObject", 3, 2, -1))
sketch13.addConstraint(Sketcher.Constraint("Horizontal", 2, 2, 5, 2))
sketch13.addConstraint(Sketcher.Constraint("Equal", 1, 4))
sketch13.addConstraint(Sketcher.Constraint("DistanceX", 1, 1, 1, 2, Q("5 mm")))
sketch13.addConstraint(Sketcher.Constraint("DistanceY", 0, 1, 0, 2, Q("40 mm")))
sketch13.addConstraint(Sketcher.Constraint("DistanceX", 0, 2, -1, 1, Q("26 mm")))
sketch13.addConstraint(Sketcher.Constraint("DistanceX", 3, 2, -1, 1, Q("47 mm")))
pad8 = body.newObject("PartDesign::Pad", "Pad007")
pad8.Profile = sketch13
pad8.Length = 7
pad8.Reversed = True

sketch14 = body.newObject("Sketcher::SketchObject", "Sketch013")
sketch14.AttachmentSupport = (doc.getObject("XY_Plane"), [""])
sketch14.MapMode = "FlatFace"
sketch14.AttachmentOffset = App.Placement(App.Vector(0, 0, -20), App.Rotation())
sketch14.addGeometry(Part.LineSegment(App.Vector(0, -28, 0), App.Vector(0, -40, 0)), False)
sketch14.addGeometry(Part.LineSegment(App.Vector(0, -40, 0), App.Vector(-10, -40, 0)), False)
sketch14.addGeometry(Part.LineSegment(App.Vector(-10, -40, 0), App.Vector(-10, -28, 0)), False)
sketch14.addGeometry(Part.LineSegment(App.Vector(-10, -28, 0), App.Vector(0, -28, 0)), False)
sketch14.addConstraint(Sketcher.Constraint("Coincident", 0, 2, 1, 1))
sketch14.addConstraint(Sketcher.Constraint("Coincident", 1, 2, 2, 1))
sketch14.addConstraint(Sketcher.Constraint("Coincident", 2, 2, 3, 1))
sketch14.addConstraint(Sketcher.Constraint("Coincident", 3, 2, 0, 1))
sketch14.addConstraint(Sketcher.Constraint("Vertical", 0))
sketch14.addConstraint(Sketcher.Constraint("Horizontal", 1))
sketch14.addConstraint(Sketcher.Constraint("Vertical", 2))
sketch14.addConstraint(Sketcher.Constraint("Horizontal", 3))
sketch14.addConstraint(Sketcher.Constraint("PointOnObject", 0, 2, -2))
sketch14.addConstraint(Sketcher.Constraint("DistanceX", 1, 2, 1, 1, Q("10 mm")))
sketch14.addConstraint(Sketcher.Constraint("DistanceY", 0, 2, 0, 1, Q("11.7 mm")))
sketch14.addConstraint(Sketcher.Constraint("DistanceY", 0, 2, -1, 1, Q("39.85 mm")))
pocket6 = body.newObject("PartDesign::Pocket", "Pocket005")
pocket6.Profile = sketch14
pocket6.Length = 10
pocket6.Reversed = True

sketch15 = body.newObject("Sketcher::SketchObject", "Sketch014")
sketch15.AttachmentSupport = (doc.getObject("XZ_Plane"), [""])
sketch15.MapMode = "FlatFace"
sketch15.AttachmentOffset = App.Placement(App.Vector(0, 0, 44), App.Rotation())
sketch15.addGeometry(Part.Circle(App.Vector(-5, -15, 0), App.Vector(0, 0, 1), 1.5), False)
sketch15.addConstraint(Sketcher.Constraint("Diameter", 0, Q("3 mm")))
sketch15.addConstraint(Sketcher.Constraint("DistanceX", 0, 3, -1, 1, Q("5 mm")))
sketch15.addConstraint(Sketcher.Constraint("DistanceY", 0, 3, -1, 1, Q("15 mm")))
pocket7 = body.newObject("PartDesign::Pocket", "Pocket006")
pocket7.Profile = sketch15
pocket7.Length = 30

doc.recompute()
